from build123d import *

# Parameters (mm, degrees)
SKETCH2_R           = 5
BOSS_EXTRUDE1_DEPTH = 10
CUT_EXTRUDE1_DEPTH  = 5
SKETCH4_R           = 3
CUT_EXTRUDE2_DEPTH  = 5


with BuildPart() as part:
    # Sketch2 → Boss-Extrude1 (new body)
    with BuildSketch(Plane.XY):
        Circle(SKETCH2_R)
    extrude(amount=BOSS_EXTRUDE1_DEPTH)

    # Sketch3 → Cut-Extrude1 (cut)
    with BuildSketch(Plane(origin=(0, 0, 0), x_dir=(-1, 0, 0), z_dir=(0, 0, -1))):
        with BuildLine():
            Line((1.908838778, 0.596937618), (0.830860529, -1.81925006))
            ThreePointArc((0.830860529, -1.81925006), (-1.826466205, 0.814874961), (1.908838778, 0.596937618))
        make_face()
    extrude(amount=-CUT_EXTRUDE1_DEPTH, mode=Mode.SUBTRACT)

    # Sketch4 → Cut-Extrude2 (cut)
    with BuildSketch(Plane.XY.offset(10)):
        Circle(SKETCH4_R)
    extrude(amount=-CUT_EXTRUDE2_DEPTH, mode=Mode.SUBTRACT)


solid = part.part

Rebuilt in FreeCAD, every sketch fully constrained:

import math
import FreeCAD as App
import Part
import Sketcher
Q = App.Units.Quantity

doc = App.newDocument("Part")
params = doc.addObject("Spreadsheet::Sheet", "Params")
for row, (alias, value) in enumerate([
    ("sketch1_diameter", "10 mm"),
    ("pad1_length", "10 mm"),
    ("sketch2_radius", "2 mm"),
    ("pocket1_length", "5 mm"),
    ("sketch3_diameter", "6 mm"),
    ("pocket2_length", "5 mm"),
], start=1):
    params.set(f"A{row}", alias)
    params.set(f"B{row}", "=" + value)
    params.setAlias(f"B{row}", alias)

body = doc.addObject("PartDesign::Body", "Body")

sketch1 = body.newObject("Sketcher::SketchObject", "Sketch")
sketch1.AttachmentSupport = (doc.getObject("XY_Plane"), [""])
sketch1.MapMode = "FlatFace"
sketch1.addGeometry(Part.Circle(App.Vector(0, 0, 0), App.Vector(0, 0, 1), 5), False)
sketch1.addConstraint([
    Sketcher.Constraint("Coincident", 0, 3, -1, 1),
    Sketcher.Constraint("Diameter", 0, Q("10 mm")),
])
sketch1.setExpression("Constraints[1]", "Params.sketch1_diameter")
pad1 = body.newObject("PartDesign::Pad", "Pad")
pad1.Profile = sketch1
pad1.setExpression("Length", "Params.pad1_length")

sketch2 = body.newObject("Sketcher::SketchObject", "Sketch001")
sketch2.AttachmentSupport = (doc.getObject("XY_Plane"), [""])
sketch2.MapMode = "FlatFace"
sketch2.addGeometry([
    Part.LineSegment(App.Vector(-0.8, -1.8, 0), App.Vector(-1.9, 0.6, 0)),
    Part.ArcOfCircle(Part.Circle(App.Vector(0, 0, 0), App.Vector(0, 0, 1), 2), math.radians(-115), math.radians(163)),
], False)
sketch2.addConstraint([
    Sketcher.Constraint("Coincident", 0, 1, 1, 1),
    Sketcher.Constraint("Coincident", 1, 2, 0, 2),
    Sketcher.Constraint("Coincident", 1, 3, -1, 1),
    Sketcher.Constraint("Radius", 1, Q("2 mm")),
    Sketcher.Constraint("Distance", 0, Q("2.645751 mm")),
    Sketcher.Constraint("DistanceX", 0, 1, -1, 1, Q("0.830861 mm")),
])
sketch2.setExpression("Constraints[3]", "Params.sketch2_radius")
pocket1 = body.newObject("PartDesign::Pocket", "Pocket")
pocket1.Profile = sketch2
pocket1.setExpression("Length", "Params.pocket1_length")
pocket1.Reversed = True

sketch3 = body.newObject("Sketcher::SketchObject", "Sketch002")
sketch3.AttachmentSupport = (doc.getObject("XY_Plane"), [""])
sketch3.MapMode = "FlatFace"
sketch3.AttachmentOffset = App.Placement(App.Vector(0, 0, 10), App.Rotation())
sketch3.addGeometry(Part.Circle(App.Vector(0, 0, 0), App.Vector(0, 0, 1), 3), False)
sketch3.addConstraint([
    Sketcher.Constraint("Coincident", 0, 3, -1, 1),
    Sketcher.Constraint("Diameter", 0, Q("6 mm")),
])
sketch3.setExpression("Constraints[1]", "Params.sketch3_diameter")
pocket2 = body.newObject("PartDesign::Pocket", "Pocket001")
pocket2.Profile = sketch3
pocket2.setExpression("Length", "Params.pocket2_length")

doc.recompute()
